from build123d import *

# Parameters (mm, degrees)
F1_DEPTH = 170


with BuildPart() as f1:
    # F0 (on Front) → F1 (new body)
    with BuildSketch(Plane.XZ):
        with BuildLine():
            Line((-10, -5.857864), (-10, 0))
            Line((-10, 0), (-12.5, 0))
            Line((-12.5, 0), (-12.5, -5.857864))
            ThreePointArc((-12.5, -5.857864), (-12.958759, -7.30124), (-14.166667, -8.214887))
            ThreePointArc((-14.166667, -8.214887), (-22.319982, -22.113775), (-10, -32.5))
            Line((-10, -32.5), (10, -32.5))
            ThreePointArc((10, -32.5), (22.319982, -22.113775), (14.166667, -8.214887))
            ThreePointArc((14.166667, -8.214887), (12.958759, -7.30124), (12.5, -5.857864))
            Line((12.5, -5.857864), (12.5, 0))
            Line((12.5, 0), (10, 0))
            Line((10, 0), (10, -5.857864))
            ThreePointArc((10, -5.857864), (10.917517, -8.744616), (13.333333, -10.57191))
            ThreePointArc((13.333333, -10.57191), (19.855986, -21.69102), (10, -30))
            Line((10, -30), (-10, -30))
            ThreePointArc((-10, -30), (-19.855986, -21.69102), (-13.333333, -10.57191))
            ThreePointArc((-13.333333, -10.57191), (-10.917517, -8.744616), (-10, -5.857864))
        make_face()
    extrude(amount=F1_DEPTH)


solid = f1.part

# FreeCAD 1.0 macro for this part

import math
import FreeCAD as App
import Part
import Sketcher

V = App.Vector

doc = App.newDocument("Part")
params = doc.addObject("Spreadsheet::Sheet", "Params")
for row, (alias, value) in enumerate([
    ("sketch1_radius", "5 mm"),
    ("sketch1_radius2", "10 mm"),
    ("sketch1_radius3", "2.500002 mm"),
    ("sketch1_width", "20 mm"),
    ("pad1_length", "170 mm"),
], start=1):
    params.set(f"A{row}", alias)
    params.set(f"B{row}", "=" + value)
    params.setAlias(f"B{row}", alias)

body = doc.addObject("PartDesign::Body", "Body")

sketch1 = body.newObject("Sketcher::SketchObject", "Sketch")
sketch1.AttachmentSupport = (doc.getObject("XZ_Plane"), [""])
sketch1.MapMode = "FlatFace"
sketch1.addGeometry([
    Part.LineSegment(V(-10, -5.9, 0), V(-10, 0, 0)),
    Part.LineSegment(V(-10, 0, 0), V(-12.5, 0, 0)),
    Part.LineSegment(V(-12.5, 0, 0), V(-12.5, -5.9, 0)),
    Part.ArcOfCircle(Part.Circle(V(-15, -5.9, 0), V(0, 0, 1), 2.5), math.radians(-71), math.radians(0)),
    Part.ArcOfCircle(Part.Circle(V(-10, -20, 0), V(0, 0, 1), 12.5), math.radians(109), math.radians(270)),
    Part.LineSegment(V(-10, -32.5, 0), V(10, -32.5, 0)),
    Part.ArcOfCircle(Part.Circle(V(10, -20, 0), V(0, 0, 1), 12.5), math.radians(-90), math.radians(71)),
    Part.ArcOfCircle(Part.Circle(V(15, -5.9, 0), V(0, 0, 1), 2.5), math.radians(-180), math.radians(-109)),
    Part.LineSegment(V(12.5, -5.9, 0), V(12.5, 0, 0)),
    Part.LineSegment(V(12.5, 0, 0), V(10, 0, 0)),
    Part.LineSegment(V(10, 0, 0), V(10, -5.9, 0)),
    Part.ArcOfCircle(Part.Circle(V(15, -5.9, 0), V(0, 0, 1), 5), math.radians(180), math.radians(251)),
    Part.ArcOfCircle(Part.Circle(V(10, -20, 0), V(0, 0, 1), 10), math.radians(-90), math.radians(71)),
    Part.LineSegment(V(10, -30, 0), V(-10, -30, 0)),
    Part.ArcOfCircle(Part.Circle(V(-10, -20, 0), V(0, 0, 1), 10), math.radians(109), math.radians(270)),
    Part.ArcOfCircle(Part.Circle(V(-15, -5.9, 0), V(0, 0, 1), 5), math.radians(-71), math.radians(0)),
], False)
sketch1.addConstraint([
    Sketcher.Constraint("Coincident", 0, 2, 1, 1),
    Sketcher.Constraint("Coincident", 1, 2, 2, 1),
    Sketcher.Constraint("Tangent", 2, 2, 3, 2),
    Sketcher.Constraint("Tangent", 3, 1, 4, 1),
    Sketcher.Constraint("Tangent", 4, 2, 5, 1),
    Sketcher.Constraint("Tangent", 5, 2, 6, 1),
    Sketcher.Constraint("Tangent", 6, 2, 7, 2),
    Sketcher.Constraint("Tangent", 7, 1, 8, 1),
    Sketcher.Constraint("Coincident", 8, 2, 9, 1),
    Sketcher.Constraint("Coincident", 9, 2, 10, 1),
    Sketcher.Constraint("Tangent", 10, 2, 11, 1),
    Sketcher.Constraint("Tangent", 11, 2, 12, 2),
    Sketcher.Constraint("Tangent", 12, 1, 13, 1),
    Sketcher.Constraint("Tangent", 13, 2, 14, 2),
    Sketcher.Constraint("Tangent", 14, 1, 15, 1),
    Sketcher.Constraint("Tangent", 15, 2, 0, 1),
    Sketcher.Constraint("Vertical", 0),
    Sketcher.Constraint("Horizontal", 1),
    Sketcher.Constraint("Vertical", 2),
    Sketcher.Constraint("Horizontal", 5),
    Sketcher.Constraint("Vertical", 8),
    Sketcher.Constraint("Horizontal", 9),
    Sketcher.Constraint("Vertical", 10),
    Sketcher.Constraint("Horizontal", 13),
    Sketcher.Constraint("Coincident", 11, 3, 7, 3),
    Sketcher.Constraint("Coincident", 12, 3, 6, 3),
    Sketcher.Constraint("Coincident", 14, 3, 4, 3),
    Sketcher.Constraint("Coincident", 15, 3, 3, 3),
    Sketcher.Constraint("Equal", 4, 6),
    Sketcher.Constraint("Equal", 3, 7),
    Sketcher.Constraint("Symmetric", 1, 2, 8, 2, -1, 1),
    Sketcher.Constraint("PointOnObject", 0, 2, -1),
    Sketcher.Constraint("Horizontal", 3, 3, 7, 3),
    Sketcher.Constraint("Vertical", 14, 3, 0, 2),
    Sketcher.Constraint("Radius", 11, 5.0),
    Sketcher.Constraint("Radius", 12, 10.0),
    Sketcher.Constraint("Radius", 3, 2.500002),
    Sketcher.Constraint("DistanceX", 5, 1, 5, 2, 20.0),
    Sketcher.Constraint("DistanceY", 4, 3, -1, 1, 20.0),
])
sketch1.setExpression("Constraints[34]", "Params.sketch1_radius")
sketch1.setExpression("Constraints[35]", "Params.sketch1_radius2")
sketch1.setExpression("Constraints[36]", "Params.sketch1_radius3")
sketch1.setExpression("Constraints[37]", "Params.sketch1_width")
pad1 = body.newObject("PartDesign::Pad", "Pad")
pad1.Profile = sketch1
pad1.setExpression("Length", "Params.pad1_length")

doc.recompute()
